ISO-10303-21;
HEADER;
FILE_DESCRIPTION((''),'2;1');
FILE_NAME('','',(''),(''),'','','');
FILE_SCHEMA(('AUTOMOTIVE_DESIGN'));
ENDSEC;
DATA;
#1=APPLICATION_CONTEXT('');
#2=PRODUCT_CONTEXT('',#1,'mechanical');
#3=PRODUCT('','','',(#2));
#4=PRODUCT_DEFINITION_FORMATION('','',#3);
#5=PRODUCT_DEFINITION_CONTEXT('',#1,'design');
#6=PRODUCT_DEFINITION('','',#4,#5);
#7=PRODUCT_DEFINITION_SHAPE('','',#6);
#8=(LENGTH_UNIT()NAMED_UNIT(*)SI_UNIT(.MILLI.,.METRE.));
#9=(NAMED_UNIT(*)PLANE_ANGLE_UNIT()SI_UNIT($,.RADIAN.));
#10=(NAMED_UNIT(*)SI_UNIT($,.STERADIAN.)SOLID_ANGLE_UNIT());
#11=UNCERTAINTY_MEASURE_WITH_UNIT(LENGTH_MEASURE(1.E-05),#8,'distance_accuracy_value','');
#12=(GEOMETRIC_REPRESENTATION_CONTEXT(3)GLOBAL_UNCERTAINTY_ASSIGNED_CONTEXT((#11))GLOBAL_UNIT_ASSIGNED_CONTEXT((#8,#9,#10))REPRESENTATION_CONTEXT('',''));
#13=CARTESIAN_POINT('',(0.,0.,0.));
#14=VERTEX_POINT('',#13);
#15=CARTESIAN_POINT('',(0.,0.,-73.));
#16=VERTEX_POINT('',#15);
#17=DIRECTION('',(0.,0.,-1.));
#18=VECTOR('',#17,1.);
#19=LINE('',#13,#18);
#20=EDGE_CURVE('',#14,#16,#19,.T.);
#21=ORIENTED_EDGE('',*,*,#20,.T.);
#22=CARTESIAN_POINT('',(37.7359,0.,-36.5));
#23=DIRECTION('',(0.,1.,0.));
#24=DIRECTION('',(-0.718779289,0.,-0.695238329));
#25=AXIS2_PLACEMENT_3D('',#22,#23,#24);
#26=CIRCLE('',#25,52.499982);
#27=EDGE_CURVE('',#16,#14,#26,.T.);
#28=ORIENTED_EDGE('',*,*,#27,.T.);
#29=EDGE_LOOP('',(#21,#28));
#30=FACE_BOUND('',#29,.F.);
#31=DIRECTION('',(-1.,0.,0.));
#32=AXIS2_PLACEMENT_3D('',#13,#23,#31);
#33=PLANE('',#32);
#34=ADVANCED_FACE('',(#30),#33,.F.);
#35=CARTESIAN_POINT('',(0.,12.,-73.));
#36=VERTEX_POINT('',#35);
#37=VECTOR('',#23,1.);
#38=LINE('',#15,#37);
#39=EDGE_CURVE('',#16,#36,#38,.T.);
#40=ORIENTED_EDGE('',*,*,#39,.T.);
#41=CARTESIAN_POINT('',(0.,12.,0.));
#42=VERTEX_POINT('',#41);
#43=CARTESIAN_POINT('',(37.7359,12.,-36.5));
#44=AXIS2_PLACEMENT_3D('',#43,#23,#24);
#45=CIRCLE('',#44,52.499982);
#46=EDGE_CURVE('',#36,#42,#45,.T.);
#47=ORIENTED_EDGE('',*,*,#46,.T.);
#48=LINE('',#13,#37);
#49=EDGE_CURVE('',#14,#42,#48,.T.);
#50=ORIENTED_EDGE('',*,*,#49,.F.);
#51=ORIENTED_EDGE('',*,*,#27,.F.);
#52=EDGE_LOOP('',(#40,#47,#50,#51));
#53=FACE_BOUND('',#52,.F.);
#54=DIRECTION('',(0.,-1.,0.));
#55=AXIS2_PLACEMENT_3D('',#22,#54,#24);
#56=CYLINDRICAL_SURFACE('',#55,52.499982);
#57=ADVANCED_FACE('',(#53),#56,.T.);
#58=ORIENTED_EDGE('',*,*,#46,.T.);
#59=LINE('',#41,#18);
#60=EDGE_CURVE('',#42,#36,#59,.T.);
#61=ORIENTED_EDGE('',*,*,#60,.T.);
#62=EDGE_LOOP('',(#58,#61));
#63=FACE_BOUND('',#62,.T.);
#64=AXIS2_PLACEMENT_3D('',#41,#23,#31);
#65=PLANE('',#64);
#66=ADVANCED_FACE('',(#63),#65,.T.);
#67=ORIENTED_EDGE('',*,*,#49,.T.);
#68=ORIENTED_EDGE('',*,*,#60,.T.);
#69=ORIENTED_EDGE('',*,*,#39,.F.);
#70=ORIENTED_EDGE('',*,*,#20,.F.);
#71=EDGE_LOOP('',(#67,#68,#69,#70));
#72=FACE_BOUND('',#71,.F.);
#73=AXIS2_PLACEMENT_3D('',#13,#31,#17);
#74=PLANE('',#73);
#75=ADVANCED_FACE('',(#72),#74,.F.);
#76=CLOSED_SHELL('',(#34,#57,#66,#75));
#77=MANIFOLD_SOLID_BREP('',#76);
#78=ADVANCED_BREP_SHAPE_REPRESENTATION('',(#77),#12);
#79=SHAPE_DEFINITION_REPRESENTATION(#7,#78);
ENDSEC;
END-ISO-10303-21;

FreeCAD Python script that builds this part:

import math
import FreeCAD as App
import Part
import Sketcher

V = App.Vector
Q = App.Units.Quantity

doc = App.newDocument("Part")
body = doc.addObject("PartDesign::Body", "Body")

sketch1 = body.newObject("Sketcher::SketchObject", "Sketch")
sketch1.AttachmentSupport = (doc.getObject("XZ_Plane"), [""])
sketch1.MapMode = "FlatFace"
sketch1.addGeometry([
    Part.ArcOfCircle(Part.Circle(V(38, -36, 0), V(0, 0, 1), 52), math.radians(136), math.radians(224)),
    Part.LineSegment(V(0, 0, 0), V(0, -73, 0)),
], False)
sketch1.addConstraint([
    Sketcher.Constraint("Coincident", 0, 1, 1, 1),
    Sketcher.Constraint("Coincident", 1, 2, 0, 2),
    Sketcher.Constraint("Vertical", 1),
    Sketcher.Constraint("Coincident", 0, 1, -1, 1),
    Sketcher.Constraint("Radius", 0, Q("52.5 mm")),
    Sketcher.Constraint("DistanceY", 1, 2, 1, 1, Q("73 mm")),
])
pad1 = body.newObject("PartDesign::Pad", "Pad")
pad1.Profile = sketch1
pad1.Length = 12
pad1.Reversed = True

doc.recompute()
